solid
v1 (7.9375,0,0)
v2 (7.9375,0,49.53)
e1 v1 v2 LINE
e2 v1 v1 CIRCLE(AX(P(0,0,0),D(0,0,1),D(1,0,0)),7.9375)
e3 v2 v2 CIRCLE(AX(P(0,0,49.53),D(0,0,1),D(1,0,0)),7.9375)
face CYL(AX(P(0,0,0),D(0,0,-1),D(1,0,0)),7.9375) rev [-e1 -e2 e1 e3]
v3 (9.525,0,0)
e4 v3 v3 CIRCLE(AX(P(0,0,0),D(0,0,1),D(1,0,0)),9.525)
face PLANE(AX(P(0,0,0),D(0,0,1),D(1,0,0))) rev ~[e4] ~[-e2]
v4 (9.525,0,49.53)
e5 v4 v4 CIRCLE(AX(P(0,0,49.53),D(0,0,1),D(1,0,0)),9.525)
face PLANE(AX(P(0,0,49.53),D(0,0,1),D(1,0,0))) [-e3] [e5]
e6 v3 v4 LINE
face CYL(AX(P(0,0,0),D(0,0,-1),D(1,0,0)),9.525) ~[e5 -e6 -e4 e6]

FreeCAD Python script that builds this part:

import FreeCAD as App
import Part
import Sketcher
Q = App.Units.Quantity

doc = App.newDocument("Part")
body = doc.addObject("PartDesign::Body", "Body")

# Sketch on XY plane
sketch1 = body.newObject("Sketcher::SketchObject", "Sketch")
sketch1.AttachmentSupport = (doc.getObject("XY_Plane"), [""])
sketch1.MapMode = "FlatFace"
sketch1.addGeometry([
    Part.Circle(App.Vector(0, 0, 0), App.Vector(0, 0, 1), 10),
    Part.Circle(App.Vector(0, 0, 0), App.Vector(0, 0, 1), 8),
], False)
sketch1.addConstraint([
    Sketcher.Constraint("Coincident", 0, 3, -1, 1),
    Sketcher.Constraint("Coincident", 1, 3, -1, 1),
    Sketcher.Constraint("Diameter", 0, Q("0.75 in")),
    Sketcher.Constraint("Diameter", 1, Q("0.625 in")),
])
pad1 = body.newObject("PartDesign::Pad", "Pad")
pad1.Profile = sketch1
pad1.Length = Q("1.95 in")

doc.recompute()
